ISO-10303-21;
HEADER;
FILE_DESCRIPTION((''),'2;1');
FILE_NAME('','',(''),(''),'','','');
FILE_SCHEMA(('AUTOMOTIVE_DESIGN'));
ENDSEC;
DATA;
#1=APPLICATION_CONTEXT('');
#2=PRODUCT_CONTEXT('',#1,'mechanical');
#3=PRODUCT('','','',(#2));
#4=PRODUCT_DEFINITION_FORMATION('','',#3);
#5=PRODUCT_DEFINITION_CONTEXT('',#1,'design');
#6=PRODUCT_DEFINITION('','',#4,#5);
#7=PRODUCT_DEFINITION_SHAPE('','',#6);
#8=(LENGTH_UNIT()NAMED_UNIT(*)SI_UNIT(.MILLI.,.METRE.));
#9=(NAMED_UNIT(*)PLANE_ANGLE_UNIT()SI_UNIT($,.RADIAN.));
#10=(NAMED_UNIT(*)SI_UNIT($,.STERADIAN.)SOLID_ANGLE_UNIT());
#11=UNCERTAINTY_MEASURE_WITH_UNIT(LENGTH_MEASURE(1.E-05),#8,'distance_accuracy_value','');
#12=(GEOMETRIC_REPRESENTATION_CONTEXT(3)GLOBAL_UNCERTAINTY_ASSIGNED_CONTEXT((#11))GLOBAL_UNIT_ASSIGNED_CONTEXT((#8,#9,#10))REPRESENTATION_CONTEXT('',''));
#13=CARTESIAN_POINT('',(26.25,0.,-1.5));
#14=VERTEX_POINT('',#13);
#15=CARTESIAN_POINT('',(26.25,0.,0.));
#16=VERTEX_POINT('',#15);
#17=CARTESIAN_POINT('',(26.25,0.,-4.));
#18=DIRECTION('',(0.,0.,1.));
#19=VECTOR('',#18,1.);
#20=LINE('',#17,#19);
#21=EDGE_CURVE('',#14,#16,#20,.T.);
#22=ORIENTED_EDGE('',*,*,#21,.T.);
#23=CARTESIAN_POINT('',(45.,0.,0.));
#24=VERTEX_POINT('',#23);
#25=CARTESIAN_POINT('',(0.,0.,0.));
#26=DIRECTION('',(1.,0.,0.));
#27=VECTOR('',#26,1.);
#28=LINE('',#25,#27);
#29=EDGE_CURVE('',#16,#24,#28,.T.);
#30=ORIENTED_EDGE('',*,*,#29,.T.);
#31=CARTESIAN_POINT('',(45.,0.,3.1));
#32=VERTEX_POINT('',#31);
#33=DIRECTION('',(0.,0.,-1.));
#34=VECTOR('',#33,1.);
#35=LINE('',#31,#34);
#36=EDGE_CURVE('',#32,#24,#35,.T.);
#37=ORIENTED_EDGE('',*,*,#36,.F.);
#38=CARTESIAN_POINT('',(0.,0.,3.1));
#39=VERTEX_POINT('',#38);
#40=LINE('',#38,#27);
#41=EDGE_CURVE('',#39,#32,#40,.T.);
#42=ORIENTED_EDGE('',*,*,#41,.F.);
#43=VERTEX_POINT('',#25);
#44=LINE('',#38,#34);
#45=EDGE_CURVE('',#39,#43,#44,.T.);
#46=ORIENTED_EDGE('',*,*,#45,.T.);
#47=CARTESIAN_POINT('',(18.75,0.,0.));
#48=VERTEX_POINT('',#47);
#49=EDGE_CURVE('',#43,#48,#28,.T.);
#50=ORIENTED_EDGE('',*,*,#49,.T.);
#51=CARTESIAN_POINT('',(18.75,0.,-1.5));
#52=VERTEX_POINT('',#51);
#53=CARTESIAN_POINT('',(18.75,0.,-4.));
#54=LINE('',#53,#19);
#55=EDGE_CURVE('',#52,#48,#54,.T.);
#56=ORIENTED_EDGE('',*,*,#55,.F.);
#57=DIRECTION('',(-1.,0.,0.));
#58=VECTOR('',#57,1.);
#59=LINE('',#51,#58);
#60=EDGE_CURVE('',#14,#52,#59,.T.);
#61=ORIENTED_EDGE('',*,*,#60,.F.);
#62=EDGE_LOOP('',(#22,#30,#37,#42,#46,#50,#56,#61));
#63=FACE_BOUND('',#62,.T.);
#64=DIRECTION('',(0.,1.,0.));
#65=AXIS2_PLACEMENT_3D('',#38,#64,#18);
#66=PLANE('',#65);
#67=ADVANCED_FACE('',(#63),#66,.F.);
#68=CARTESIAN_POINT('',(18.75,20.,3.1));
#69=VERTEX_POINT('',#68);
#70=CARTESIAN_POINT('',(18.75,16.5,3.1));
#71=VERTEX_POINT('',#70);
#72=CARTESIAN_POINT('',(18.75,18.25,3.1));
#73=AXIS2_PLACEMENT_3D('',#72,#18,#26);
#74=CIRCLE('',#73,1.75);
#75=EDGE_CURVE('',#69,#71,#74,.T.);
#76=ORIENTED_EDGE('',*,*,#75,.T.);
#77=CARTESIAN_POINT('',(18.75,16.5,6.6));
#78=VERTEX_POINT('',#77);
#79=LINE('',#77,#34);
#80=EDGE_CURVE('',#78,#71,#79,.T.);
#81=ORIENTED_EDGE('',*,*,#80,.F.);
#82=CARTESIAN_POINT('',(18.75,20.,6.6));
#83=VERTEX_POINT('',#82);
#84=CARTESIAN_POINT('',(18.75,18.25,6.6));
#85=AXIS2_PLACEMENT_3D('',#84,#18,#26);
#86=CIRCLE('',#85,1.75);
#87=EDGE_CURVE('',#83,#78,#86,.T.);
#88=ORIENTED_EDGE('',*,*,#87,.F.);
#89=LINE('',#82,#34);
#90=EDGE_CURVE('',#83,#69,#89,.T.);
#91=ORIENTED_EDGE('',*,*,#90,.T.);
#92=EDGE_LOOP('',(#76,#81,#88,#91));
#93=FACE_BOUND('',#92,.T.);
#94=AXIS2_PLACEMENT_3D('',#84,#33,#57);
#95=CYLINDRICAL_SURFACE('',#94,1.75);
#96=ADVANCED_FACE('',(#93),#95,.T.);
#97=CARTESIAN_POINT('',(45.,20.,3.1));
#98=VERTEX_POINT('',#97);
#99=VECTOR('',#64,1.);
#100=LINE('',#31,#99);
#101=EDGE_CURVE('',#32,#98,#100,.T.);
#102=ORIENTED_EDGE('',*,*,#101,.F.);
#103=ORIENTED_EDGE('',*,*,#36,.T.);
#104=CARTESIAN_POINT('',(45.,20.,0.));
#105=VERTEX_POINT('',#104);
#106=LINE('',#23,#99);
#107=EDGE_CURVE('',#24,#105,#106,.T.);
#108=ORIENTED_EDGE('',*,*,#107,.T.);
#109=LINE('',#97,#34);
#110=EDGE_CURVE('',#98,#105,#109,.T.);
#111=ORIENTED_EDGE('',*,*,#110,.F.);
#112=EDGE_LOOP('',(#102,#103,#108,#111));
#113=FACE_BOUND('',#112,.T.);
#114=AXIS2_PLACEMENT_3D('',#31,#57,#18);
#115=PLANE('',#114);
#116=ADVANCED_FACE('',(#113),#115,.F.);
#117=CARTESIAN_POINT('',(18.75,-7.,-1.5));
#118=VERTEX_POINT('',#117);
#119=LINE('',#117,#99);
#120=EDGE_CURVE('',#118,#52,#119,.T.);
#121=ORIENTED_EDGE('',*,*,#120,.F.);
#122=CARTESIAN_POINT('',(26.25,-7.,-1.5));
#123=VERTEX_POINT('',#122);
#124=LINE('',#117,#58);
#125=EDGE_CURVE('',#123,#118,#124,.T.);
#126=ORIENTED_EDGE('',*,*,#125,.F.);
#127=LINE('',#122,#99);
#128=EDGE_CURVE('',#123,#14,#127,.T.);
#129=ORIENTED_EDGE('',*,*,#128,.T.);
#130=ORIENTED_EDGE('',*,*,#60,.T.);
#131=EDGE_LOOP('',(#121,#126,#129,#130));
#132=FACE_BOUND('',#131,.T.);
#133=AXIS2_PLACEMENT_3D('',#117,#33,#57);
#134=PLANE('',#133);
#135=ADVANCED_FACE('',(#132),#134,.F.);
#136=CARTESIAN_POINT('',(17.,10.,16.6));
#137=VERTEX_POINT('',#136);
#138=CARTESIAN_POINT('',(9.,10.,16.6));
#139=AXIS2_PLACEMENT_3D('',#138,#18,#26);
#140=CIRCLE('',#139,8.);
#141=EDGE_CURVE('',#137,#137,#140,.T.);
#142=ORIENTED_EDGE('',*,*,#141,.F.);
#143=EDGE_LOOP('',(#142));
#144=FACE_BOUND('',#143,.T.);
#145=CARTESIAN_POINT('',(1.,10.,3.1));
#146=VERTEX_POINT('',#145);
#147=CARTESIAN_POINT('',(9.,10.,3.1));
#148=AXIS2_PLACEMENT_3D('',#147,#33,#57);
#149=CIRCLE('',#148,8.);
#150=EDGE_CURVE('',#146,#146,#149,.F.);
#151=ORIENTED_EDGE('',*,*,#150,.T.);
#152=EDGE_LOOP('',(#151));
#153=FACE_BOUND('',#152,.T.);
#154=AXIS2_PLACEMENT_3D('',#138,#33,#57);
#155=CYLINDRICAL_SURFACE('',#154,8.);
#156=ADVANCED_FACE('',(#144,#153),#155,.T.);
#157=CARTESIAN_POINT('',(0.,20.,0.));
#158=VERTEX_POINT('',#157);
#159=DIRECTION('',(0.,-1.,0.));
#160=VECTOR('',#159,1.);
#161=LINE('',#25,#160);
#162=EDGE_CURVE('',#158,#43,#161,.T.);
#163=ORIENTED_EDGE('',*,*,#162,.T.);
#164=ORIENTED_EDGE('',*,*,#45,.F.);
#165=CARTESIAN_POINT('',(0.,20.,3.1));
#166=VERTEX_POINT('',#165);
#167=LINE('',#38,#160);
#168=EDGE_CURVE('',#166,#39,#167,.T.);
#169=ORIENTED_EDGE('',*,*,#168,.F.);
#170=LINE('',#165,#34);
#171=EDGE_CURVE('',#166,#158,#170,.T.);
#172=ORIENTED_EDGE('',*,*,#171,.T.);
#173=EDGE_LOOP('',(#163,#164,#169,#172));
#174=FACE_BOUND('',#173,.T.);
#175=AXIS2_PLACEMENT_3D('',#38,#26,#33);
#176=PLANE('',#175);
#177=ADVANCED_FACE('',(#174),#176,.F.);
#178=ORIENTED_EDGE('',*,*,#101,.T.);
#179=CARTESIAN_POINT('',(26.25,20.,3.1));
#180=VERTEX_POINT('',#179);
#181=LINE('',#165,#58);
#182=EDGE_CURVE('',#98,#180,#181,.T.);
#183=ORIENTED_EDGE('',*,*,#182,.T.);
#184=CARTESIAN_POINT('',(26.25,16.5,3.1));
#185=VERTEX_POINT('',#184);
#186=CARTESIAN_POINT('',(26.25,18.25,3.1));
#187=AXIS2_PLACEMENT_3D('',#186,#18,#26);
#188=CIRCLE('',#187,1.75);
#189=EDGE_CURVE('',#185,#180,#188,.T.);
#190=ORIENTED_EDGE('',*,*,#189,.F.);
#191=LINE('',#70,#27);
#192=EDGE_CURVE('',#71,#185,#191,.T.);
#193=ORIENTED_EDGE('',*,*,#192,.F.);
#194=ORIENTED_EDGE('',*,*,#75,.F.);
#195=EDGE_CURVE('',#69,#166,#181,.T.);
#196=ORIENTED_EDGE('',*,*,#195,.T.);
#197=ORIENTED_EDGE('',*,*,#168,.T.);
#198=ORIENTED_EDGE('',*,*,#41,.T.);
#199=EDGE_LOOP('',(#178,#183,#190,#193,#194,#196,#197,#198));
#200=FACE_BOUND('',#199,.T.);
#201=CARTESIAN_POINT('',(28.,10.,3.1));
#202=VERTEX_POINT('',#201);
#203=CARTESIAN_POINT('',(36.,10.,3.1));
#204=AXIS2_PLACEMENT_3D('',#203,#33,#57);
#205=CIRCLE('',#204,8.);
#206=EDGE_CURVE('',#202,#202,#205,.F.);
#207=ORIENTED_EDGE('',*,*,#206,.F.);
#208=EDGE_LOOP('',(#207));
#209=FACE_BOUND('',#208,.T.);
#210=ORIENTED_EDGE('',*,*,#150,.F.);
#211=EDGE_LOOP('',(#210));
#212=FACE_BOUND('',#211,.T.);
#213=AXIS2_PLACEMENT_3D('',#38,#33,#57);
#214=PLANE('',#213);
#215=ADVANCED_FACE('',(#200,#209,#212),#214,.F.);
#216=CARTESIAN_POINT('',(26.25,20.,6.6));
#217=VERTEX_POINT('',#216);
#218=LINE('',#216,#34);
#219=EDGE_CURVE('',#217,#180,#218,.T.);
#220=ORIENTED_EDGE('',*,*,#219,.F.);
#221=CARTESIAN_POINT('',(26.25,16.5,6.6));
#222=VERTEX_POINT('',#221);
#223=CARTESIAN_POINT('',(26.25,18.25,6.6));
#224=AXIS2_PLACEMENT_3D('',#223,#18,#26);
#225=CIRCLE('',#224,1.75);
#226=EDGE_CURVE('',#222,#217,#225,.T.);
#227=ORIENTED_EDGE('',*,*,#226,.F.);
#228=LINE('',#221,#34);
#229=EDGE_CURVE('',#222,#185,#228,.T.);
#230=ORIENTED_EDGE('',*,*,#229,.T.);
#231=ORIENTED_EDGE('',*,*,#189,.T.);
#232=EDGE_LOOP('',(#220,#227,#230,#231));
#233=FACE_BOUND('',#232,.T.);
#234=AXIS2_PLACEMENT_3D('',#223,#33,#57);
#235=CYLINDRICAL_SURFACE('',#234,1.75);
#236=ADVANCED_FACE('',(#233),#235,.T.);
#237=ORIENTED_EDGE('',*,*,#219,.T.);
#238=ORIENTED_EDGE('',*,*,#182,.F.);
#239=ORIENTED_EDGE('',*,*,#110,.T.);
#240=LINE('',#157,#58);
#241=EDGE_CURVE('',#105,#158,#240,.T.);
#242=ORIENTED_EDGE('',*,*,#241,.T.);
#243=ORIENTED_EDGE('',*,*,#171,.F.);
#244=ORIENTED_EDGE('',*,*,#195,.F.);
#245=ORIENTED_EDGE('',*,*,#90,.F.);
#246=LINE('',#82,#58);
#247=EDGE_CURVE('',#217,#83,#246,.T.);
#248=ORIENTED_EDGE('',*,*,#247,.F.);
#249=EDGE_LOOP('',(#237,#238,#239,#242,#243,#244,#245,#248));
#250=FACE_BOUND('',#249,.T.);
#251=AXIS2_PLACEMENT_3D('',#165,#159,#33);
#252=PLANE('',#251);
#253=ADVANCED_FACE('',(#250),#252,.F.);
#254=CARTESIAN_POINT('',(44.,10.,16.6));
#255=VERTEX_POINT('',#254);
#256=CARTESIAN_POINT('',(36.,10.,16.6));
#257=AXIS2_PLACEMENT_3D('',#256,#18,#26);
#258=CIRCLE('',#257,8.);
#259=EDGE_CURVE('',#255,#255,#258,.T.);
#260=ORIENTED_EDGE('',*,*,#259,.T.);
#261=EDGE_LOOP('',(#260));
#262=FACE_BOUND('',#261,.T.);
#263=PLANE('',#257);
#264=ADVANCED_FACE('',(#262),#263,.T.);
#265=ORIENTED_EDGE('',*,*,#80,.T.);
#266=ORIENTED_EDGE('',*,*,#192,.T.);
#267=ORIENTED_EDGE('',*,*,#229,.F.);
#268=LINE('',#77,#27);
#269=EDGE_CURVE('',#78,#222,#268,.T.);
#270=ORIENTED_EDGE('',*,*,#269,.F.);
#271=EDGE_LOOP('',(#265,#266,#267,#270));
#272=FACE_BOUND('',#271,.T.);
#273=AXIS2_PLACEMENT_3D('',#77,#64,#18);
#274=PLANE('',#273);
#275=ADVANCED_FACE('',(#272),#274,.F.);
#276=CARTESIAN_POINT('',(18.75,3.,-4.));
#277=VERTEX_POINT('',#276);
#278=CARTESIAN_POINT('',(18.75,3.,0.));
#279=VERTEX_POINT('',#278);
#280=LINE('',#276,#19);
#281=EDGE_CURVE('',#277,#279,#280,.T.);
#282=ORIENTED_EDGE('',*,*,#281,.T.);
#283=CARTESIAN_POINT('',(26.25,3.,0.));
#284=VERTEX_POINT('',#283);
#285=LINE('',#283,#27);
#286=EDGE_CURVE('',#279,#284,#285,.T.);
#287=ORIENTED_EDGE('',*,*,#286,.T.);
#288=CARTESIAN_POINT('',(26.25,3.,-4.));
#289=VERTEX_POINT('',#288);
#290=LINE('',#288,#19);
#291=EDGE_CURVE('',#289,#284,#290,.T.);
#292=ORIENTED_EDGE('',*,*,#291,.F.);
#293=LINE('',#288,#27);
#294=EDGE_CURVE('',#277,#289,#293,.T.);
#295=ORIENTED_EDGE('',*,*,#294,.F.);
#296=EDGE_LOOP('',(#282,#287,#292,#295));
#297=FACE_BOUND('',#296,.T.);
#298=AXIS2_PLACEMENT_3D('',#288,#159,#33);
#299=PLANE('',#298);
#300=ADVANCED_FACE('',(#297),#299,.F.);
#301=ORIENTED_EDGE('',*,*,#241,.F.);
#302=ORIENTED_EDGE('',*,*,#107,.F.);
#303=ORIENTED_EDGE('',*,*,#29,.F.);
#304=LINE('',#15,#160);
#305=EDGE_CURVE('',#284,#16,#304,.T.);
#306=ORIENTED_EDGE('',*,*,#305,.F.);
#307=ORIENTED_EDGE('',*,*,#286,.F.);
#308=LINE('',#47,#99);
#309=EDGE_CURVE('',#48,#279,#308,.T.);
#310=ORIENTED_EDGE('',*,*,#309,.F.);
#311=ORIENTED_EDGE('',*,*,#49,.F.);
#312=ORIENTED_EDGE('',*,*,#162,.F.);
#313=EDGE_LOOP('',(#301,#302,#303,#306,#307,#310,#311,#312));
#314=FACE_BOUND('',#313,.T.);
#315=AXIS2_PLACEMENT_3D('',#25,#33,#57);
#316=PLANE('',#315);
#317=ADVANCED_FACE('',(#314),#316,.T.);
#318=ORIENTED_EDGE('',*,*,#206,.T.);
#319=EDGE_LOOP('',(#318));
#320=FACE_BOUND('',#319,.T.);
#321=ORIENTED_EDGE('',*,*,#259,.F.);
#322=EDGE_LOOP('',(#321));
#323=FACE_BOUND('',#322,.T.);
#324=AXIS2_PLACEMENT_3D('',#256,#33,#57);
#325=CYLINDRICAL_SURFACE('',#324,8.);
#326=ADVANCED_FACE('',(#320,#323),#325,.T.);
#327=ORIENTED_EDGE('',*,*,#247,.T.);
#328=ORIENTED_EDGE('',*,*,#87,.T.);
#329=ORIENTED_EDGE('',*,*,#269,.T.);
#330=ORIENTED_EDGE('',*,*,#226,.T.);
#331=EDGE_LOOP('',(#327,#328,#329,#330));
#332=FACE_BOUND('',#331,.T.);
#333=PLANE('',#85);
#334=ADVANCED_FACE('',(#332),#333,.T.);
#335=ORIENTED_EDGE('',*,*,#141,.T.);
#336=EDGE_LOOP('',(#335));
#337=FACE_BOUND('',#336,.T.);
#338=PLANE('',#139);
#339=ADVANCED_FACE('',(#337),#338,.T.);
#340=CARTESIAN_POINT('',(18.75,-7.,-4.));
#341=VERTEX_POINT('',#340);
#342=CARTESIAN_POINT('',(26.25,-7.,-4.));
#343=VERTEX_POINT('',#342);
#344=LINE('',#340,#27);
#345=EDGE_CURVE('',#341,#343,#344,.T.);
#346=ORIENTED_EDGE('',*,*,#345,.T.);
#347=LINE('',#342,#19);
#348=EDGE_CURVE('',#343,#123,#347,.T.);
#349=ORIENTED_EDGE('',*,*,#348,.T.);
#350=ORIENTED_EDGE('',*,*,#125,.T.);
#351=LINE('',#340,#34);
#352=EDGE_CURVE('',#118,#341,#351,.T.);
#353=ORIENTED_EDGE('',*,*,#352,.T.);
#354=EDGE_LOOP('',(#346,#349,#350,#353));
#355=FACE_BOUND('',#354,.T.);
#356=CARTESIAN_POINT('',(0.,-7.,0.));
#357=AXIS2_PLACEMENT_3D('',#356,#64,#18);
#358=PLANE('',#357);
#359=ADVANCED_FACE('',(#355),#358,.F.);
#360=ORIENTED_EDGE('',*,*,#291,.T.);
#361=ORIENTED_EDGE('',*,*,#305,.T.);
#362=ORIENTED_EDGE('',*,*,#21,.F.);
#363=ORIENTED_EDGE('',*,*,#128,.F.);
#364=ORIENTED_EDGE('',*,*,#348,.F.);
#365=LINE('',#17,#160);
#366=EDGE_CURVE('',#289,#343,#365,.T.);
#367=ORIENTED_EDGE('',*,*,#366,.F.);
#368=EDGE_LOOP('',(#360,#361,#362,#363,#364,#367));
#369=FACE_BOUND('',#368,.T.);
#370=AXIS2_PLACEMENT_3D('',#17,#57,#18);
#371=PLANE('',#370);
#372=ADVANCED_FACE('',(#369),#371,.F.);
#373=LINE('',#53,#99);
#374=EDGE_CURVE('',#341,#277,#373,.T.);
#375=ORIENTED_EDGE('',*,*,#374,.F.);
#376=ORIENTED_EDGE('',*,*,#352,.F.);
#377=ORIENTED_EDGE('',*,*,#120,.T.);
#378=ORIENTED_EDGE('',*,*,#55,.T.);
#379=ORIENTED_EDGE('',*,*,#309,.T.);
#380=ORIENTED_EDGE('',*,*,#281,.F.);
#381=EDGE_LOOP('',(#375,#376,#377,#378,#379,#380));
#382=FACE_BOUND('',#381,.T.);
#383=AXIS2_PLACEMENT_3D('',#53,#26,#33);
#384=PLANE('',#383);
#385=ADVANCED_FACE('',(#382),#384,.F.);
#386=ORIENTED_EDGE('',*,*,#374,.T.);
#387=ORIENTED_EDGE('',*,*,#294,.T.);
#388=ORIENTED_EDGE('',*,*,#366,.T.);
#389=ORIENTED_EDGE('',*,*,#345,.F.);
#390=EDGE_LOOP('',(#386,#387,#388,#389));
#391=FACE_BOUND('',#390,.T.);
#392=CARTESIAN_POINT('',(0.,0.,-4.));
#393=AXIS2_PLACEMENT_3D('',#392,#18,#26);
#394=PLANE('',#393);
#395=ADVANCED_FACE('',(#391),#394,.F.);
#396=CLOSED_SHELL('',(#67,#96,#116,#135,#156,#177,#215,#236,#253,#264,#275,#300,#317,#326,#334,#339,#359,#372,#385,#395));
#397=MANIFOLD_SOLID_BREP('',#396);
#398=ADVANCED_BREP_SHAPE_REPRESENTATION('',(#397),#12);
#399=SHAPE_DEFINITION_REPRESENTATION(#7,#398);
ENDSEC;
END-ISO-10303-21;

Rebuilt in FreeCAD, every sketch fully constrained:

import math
import FreeCAD as App
import Part
import Sketcher
from FreeCAD import Vector
Q = App.Units.Quantity


def add_polygon(sketch, points):
    """Adds a closed chain of lines whose ends are joined by coincident constraints."""
    first, n = sketch.GeometryCount, len(points)
    for a, b in zip(points, points[1:] + points[:1]):
        sketch.addGeometry(Part.LineSegment(App.Vector(*a, 0), App.Vector(*b, 0)), False)
    for i in range(n):
        sketch.addConstraint(Sketcher.Constraint("Coincident", first + i, 2, first + (i + 1) % n, 1))

doc = App.newDocument("Part")
body = doc.addObject("PartDesign::Body", "Body")

sketch1 = body.newObject("Sketcher::SketchObject", "Sketch")
sketch1.AttachmentSupport = (doc.getObject("XY_Plane"), [""])
sketch1.MapMode = "FlatFace"
add_polygon(sketch1, [(0, 20), (0, 0), (45, 0), (45, 20)])
sketch1.addConstraint([
    Sketcher.Constraint("Vertical", 0),
    Sketcher.Constraint("Horizontal", 1),
    Sketcher.Constraint("Vertical", 2),
    Sketcher.Constraint("Horizontal", 3),
    Sketcher.Constraint("Coincident", 0, 2, -1, 1),
    Sketcher.Constraint("DistanceX", 1, 1, 1, 2, Q("45 mm")),
    Sketcher.Constraint("DistanceY", 0, 2, 0, 1, Q("20 mm")),
])
pad1 = body.newObject("PartDesign::Pad", "Pad")
pad1.Profile = sketch1
pad1.Length = 3.1

sketch2 = body.newObject("Sketcher::SketchObject", "Sketch001")
sketch2.AttachmentSupport = (doc.getObject("XY_Plane"), [""])
sketch2.MapMode = "FlatFace"
sketch2.AttachmentOffset = App.Placement(Vector(0, 0, 3.1), App.Rotation())
sketch2.addGeometry([
    Part.Circle(Vector(9, 10, 0), Vector(0, 0, 1), 8),
    Part.Circle(Vector(36, 10, 0), Vector(0, 0, 1), 8),
], False)
sketch2.addConstraint([
    Sketcher.Constraint("Equal", 0, 1),
    Sketcher.Constraint("Horizontal", 0, 3, 1, 3),
    Sketcher.Constraint("Diameter", 0, Q("16 mm")),
    Sketcher.Constraint("DistanceX", -1, 1, 0, 3, Q("9 mm")),
    Sketcher.Constraint("DistanceY", -1, 1, 0, 3, Q("10 mm")),
    Sketcher.Constraint("DistanceX", -1, 1, 1, 3, Q("36 mm")),
])
pad2 = body.newObject("PartDesign::Pad", "Pad001")
pad2.Profile = sketch2
pad2.Length = 13.5

sketch3 = body.newObject("Sketcher::SketchObject", "Sketch002")
sketch3.AttachmentSupport = (doc.getObject("XY_Plane"), [""])
sketch3.MapMode = "FlatFace"
add_polygon(sketch3, [(26.25, 3), (26.25, 0), (18.75, 0), (18.75, 3)])
sketch3.addConstraint([
    Sketcher.Constraint("Vertical", 0),
    Sketcher.Constraint("Horizontal", 1),
    Sketcher.Constraint("Vertical", 2),
    Sketcher.Constraint("Horizontal", 3),
    Sketcher.Constraint("PointOnObject", 0, 2, -1),
    Sketcher.Constraint("DistanceY", 0, 2, 0, 1, Q("3 mm")),
    Sketcher.Constraint("DistanceX", 1, 2, 1, 1, Q("7.5 mm")),
    Sketcher.Constraint("DistanceX", -1, 1, 0, 2, Q("26.25 mm")),
])
pad3 = body.newObject("PartDesign::Pad", "Pad002")
pad3.Profile = sketch3
pad3.Length = 4
pad3.Reversed = True

sketch4 = body.newObject("Sketcher::SketchObject", "Sketch003")
sketch4.AttachmentSupport = (doc.getObject("XY_Plane"), [""])
sketch4.MapMode = "FlatFace"
sketch4.AttachmentOffset = App.Placement(Vector(0, 0, 3.1), App.Rotation())
sketch4.addGeometry([
    Part.LineSegment(Vector(26.25, 20, 0), Vector(18.75, 20, 0)),
    Part.ArcOfCircle(Part.Circle(Vector(18.75, 18.25, 0), Vector(0, 0, 1), 1.75), math.radians(90), math.radians(270)),
    Part.LineSegment(Vector(18.75, 16.5, 0), Vector(26.25, 16.5, 0)),
    Part.ArcOfCircle(Part.Circle(Vector(26.25, 18.25, 0), Vector(0, 0, 1), 1.75), math.radians(-90), math.radians(90)),
], False)
sketch4.addConstraint([
    Sketcher.Constraint("Tangent", 0, 2, 1, 1),
    Sketcher.Constraint("Tangent", 1, 2, 2, 1),
    Sketcher.Constraint("Tangent", 2, 2, 3, 1),
    Sketcher.Constraint("Tangent", 3, 2, 0, 1),
    Sketcher.Constraint("Horizontal", 0),
    Sketcher.Constraint("Horizontal", 2),
    Sketcher.Constraint("Radius", 1, Q("1.75 mm")),
    Sketcher.Constraint("DistanceX", 0, 2, 0, 1, Q("7.5 mm")),
    Sketcher.Constraint("DistanceY", -1, 1, 0, 2, Q("20 mm")),
    Sketcher.Constraint("DistanceX", -1, 1, 1, 3, Q("18.75 mm")),
])
pad4 = body.newObject("PartDesign::Pad", "Pad003")
pad4.Profile = sketch4
pad4.Length = 3.5

sketch5 = body.newObject("Sketcher::SketchObject", "Sketch004")
sketch5.AttachmentSupport = (doc.getObject("XZ_Plane"), [""])
sketch5.MapMode = "FlatFace"
add_polygon(sketch5, [(18.75, -1.5), (18.75, -4), (26.25, -4), (26.25, -1.5)])
sketch5.addConstraint([
    Sketcher.Constraint("Vertical", 0),
    Sketcher.Constraint("Horizontal", 1),
    Sketcher.Constraint("Vertical", 2),
    Sketcher.Constraint("Horizontal", 3),
    Sketcher.Constraint("DistanceX", 1, 1, 1, 2, Q("7.5 mm")),
    Sketcher.Constraint("DistanceY", 0, 2, 0, 1, Q("2.5 mm")),
    Sketcher.Constraint("DistanceY", 0, 2, -1, 1, Q("4 mm")),
    Sketcher.Constraint("DistanceX", -1, 1, 0, 2, Q("18.75 mm")),
])
pad5 = body.newObject("PartDesign::Pad", "Pad004")
pad5.Profile = sketch5
pad5.Length = 7

doc.recompute()
